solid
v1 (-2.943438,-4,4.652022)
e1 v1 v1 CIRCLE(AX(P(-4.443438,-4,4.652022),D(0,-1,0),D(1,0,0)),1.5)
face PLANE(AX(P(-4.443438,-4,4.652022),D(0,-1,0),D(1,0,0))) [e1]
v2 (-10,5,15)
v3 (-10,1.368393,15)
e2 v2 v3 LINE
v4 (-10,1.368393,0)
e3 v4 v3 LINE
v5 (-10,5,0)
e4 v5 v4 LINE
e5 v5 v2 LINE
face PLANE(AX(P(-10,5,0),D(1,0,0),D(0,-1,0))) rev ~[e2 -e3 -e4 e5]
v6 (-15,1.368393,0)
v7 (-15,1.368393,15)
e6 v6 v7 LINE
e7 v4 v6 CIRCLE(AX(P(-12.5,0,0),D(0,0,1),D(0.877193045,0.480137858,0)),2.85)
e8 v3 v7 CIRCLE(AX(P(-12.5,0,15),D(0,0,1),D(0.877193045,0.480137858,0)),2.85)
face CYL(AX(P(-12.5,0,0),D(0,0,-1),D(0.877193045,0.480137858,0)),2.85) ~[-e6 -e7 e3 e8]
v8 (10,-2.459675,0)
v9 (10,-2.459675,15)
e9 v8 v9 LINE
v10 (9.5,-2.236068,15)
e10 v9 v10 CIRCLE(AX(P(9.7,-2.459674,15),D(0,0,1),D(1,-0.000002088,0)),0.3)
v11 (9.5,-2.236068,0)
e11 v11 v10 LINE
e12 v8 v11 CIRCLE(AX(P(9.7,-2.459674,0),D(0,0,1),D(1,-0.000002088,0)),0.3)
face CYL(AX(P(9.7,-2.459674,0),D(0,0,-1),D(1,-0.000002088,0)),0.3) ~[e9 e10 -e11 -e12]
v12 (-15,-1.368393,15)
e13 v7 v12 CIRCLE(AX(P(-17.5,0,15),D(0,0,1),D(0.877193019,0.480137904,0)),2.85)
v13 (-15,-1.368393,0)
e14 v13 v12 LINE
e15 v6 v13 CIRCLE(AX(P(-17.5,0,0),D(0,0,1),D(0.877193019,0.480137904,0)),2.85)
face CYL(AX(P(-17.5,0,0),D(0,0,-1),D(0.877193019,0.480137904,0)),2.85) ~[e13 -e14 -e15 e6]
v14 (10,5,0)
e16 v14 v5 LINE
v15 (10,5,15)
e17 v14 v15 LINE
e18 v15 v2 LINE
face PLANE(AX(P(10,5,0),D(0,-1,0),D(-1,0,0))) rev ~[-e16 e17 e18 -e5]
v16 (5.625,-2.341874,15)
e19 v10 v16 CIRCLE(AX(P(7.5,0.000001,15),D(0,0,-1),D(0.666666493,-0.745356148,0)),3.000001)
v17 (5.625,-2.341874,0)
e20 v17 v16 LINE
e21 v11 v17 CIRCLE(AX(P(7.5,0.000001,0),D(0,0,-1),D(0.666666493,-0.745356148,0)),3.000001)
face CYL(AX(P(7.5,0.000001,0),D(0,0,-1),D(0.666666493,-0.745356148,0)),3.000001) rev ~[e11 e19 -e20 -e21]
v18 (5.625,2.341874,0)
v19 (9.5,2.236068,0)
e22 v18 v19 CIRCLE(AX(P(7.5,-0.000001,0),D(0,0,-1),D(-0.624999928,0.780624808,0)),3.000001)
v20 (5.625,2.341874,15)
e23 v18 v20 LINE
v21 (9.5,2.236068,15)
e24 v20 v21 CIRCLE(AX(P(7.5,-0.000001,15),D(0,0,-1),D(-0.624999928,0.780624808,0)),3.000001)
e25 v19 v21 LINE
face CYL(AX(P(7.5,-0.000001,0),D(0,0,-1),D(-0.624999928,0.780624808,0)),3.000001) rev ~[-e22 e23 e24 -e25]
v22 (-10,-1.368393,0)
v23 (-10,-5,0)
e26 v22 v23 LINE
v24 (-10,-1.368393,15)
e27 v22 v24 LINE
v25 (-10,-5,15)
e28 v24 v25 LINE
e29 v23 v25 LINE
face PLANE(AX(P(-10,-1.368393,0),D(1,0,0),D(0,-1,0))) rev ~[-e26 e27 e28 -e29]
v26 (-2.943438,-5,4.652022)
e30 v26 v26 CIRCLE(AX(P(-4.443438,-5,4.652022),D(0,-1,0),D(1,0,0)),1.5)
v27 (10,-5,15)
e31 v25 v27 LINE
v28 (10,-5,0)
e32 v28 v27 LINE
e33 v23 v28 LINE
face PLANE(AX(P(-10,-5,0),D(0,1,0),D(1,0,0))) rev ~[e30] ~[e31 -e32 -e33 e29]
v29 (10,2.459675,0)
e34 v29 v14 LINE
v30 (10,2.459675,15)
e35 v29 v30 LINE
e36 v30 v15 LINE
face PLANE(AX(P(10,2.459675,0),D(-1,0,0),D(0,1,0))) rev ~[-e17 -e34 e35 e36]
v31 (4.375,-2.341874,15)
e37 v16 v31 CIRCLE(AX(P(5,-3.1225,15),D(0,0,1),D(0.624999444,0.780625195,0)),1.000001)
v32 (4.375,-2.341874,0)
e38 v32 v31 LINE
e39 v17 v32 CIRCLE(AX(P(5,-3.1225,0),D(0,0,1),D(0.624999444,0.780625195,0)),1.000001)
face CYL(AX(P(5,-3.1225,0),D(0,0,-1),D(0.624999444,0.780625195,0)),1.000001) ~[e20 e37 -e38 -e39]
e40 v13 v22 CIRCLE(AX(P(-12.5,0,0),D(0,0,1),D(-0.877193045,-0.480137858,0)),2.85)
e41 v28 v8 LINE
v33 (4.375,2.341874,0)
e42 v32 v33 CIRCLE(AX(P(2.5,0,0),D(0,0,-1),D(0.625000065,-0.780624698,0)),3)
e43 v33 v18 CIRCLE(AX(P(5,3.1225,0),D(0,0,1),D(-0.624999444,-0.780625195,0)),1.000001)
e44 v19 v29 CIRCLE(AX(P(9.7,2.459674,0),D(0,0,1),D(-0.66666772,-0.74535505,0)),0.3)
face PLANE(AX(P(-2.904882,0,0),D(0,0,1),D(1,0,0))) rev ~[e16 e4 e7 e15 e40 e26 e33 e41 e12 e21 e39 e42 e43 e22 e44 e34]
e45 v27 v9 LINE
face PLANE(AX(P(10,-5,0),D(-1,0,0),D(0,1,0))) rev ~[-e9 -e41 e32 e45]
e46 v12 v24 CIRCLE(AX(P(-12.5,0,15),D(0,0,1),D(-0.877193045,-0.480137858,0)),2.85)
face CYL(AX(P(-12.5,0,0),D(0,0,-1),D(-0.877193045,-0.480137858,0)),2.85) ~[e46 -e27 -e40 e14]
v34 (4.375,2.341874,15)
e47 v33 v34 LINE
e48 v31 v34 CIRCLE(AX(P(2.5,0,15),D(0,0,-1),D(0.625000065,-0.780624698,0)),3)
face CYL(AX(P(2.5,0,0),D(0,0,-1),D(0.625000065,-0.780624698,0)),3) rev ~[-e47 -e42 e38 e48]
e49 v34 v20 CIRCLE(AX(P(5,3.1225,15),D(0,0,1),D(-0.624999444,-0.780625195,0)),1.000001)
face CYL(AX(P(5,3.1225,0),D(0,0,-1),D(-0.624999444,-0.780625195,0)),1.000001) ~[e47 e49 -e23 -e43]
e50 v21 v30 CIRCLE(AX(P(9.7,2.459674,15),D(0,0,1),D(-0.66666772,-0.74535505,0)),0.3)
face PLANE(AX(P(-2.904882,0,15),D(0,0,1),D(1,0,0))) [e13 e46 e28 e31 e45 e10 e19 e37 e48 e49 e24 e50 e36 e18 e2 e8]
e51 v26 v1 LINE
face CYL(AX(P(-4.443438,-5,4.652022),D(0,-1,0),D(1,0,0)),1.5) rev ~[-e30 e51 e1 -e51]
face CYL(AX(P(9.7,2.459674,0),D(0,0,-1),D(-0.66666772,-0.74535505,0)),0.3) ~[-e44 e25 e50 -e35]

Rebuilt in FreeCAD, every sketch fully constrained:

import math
import FreeCAD as App
import Part
import Sketcher

V = App.Vector

doc = App.newDocument("Part")
body = doc.addObject("PartDesign::Body", "Body")

# Sketch on XY plane
sketch1 = body.newObject("Sketcher::SketchObject", "Sketch")
sketch1.AttachmentSupport = (doc.getObject("XY_Plane"), [""])
sketch1.MapMode = "FlatFace"
sketch1.addGeometry(Part.LineSegment(V(-10, -5, 0), V(10, -5, 0)), False)
sketch1.addGeometry(Part.LineSegment(V(10, -5, 0), V(10, -2.46, 0)), False)
sketch1.addGeometry(Part.ArcOfCircle(Part.Circle(V(9.7, -2.46, 0), V(0, 0, 1), 0.3), math.radians(0), math.radians(132)), False)
sketch1.addGeometry(Part.ArcOfCircle(Part.Circle(V(7.5, 0, 0), V(0, 0, 1), 3), math.radians(-129), math.radians(-48)), False)
sketch1.addGeometry(Part.ArcOfCircle(Part.Circle(V(5, -3.12, 0), V(0, 0, 1), 1), math.radians(51), math.radians(129)), False)
sketch1.addGeometry(Part.ArcOfCircle(Part.Circle(V(2.5, 0, 0), V(0, 0, 1), 3), math.radians(51), math.radians(309)), False)
sketch1.addGeometry(Part.ArcOfCircle(Part.Circle(V(5, 3.12, 0), V(0, 0, 1), 1), math.radians(-129), math.radians(-51)), False)
sketch1.addGeometry(Part.ArcOfCircle(Part.Circle(V(7.5, 0, 0), V(0, 0, 1), 3), math.radians(48), math.radians(129)), False)
sketch1.addGeometry(Part.ArcOfCircle(Part.Circle(V(9.7, 2.46, 0), V(0, 0, 1), 0.3), math.radians(-132), math.radians(0)), False)
sketch1.addGeometry(Part.LineSegment(V(10, 2.46, 0), V(10, 5, 0)), False)
sketch1.addGeometry(Part.LineSegment(V(10, 5, 0), V(-10, 5, 0)), False)
sketch1.addGeometry(Part.LineSegment(V(-10, 5, 0), V(-10, 1.37, 0)), False)
sketch1.addGeometry(Part.ArcOfCircle(Part.Circle(V(-12.5, 0, 0), V(0, 0, 1), 2.85), math.radians(29), math.radians(151)), False)
sketch1.addGeometry(Part.ArcOfCircle(Part.Circle(V(-17.5, 0, 0), V(0, 0, 1), 2.85), math.radians(29), math.radians(331)), False)
sketch1.addGeometry(Part.ArcOfCircle(Part.Circle(V(-12.5, 0, 0), V(0, 0, 1), 2.85), math.radians(-151), math.radians(-29)), False)
sketch1.addGeometry(Part.LineSegment(V(-10, -1.37, 0), V(-10, -5, 0)), False)
sketch1.addConstraint(Sketcher.Constraint("Coincident", 0, 2, 1, 1))
sketch1.addConstraint(Sketcher.Constraint("Coincident", 1, 2, 2, 1))
sketch1.addConstraint(Sketcher.Constraint("Tangent", 2, 2, 3, 2))
sketch1.addConstraint(Sketcher.Constraint("Tangent", 3, 1, 4, 1))
sketch1.addConstraint(Sketcher.Constraint("Tangent", 4, 2, 5, 2))
sketch1.addConstraint(Sketcher.Constraint("Tangent", 5, 1, 6, 1))
sketch1.addConstraint(Sketcher.Constraint("Tangent", 6, 2, 7, 2))
sketch1.addConstraint(Sketcher.Constraint("Tangent", 7, 1, 8, 1))
sketch1.addConstraint(Sketcher.Constraint("Coincident", 8, 2, 9, 1))
sketch1.addConstraint(Sketcher.Constraint("Coincident", 9, 2, 10, 1))
sketch1.addConstraint(Sketcher.Constraint("Coincident", 10, 2, 11, 1))
sketch1.addConstraint(Sketcher.Constraint("Coincident", 11, 2, 12, 1))
sketch1.addConstraint(Sketcher.Constraint("Coincident", 12, 2, 13, 1))
sketch1.addConstraint(Sketcher.Constraint("Coincident", 13, 2, 14, 1))
sketch1.addConstraint(Sketcher.Constraint("Coincident", 14, 2, 15, 1))
sketch1.addConstraint(Sketcher.Constraint("Coincident", 15, 2, 0, 1))
sketch1.addConstraint(Sketcher.Constraint("Horizontal", 0))
sketch1.addConstraint(Sketcher.Constraint("Vertical", 1))
sketch1.addConstraint(Sketcher.Constraint("Vertical", 9))
sketch1.addConstraint(Sketcher.Constraint("Horizontal", 10))
sketch1.addConstraint(Sketcher.Constraint("Vertical", 11))
sketch1.addConstraint(Sketcher.Constraint("Vertical", 15))
sketch1.addConstraint(Sketcher.Constraint("Coincident", 7, 3, 3, 3))
sketch1.addConstraint(Sketcher.Constraint("Coincident", 14, 3, 12, 3))
sketch1.addConstraint(Sketcher.Constraint("Equal", 3, 5))
sketch1.addConstraint(Sketcher.Constraint("Equal", 4, 6))
sketch1.addConstraint(Sketcher.Constraint("Equal", 5, 7))
sketch1.addConstraint(Sketcher.Constraint("Equal", 2, 8))
sketch1.addConstraint(Sketcher.Constraint("Equal", 12, 13))
sketch1.addConstraint(Sketcher.Constraint("Equal", 13, 14))
sketch1.addConstraint(Sketcher.Constraint("Symmetric", 0, 2, 10, 2, -1, 1))
sketch1.addConstraint(Sketcher.Constraint("Symmetric", 4, 3, 6, 3, -1))
sketch1.addConstraint(Sketcher.Constraint("Symmetric", 1, 2, 8, 2, -1))
sketch1.addConstraint(Sketcher.Constraint("Symmetric", 12, 2, 13, 2, -1))
sketch1.addConstraint(Sketcher.Constraint("Horizontal", 2, 3, 1, 2))
sketch1.addConstraint(Sketcher.Constraint("Horizontal", 11, 2, 12, 2))
sketch1.addConstraint(Sketcher.Constraint("Horizontal", 13, 2, 14, 2))
sketch1.addConstraint(Sketcher.Constraint("Radius", 3, 3.000001))
sketch1.addConstraint(Sketcher.Constraint("Radius", 4, 1.000001))
sketch1.addConstraint(Sketcher.Constraint("Radius", 2, 0.3))
sketch1.addConstraint(Sketcher.Constraint("DistanceX", 0, 1, 0, 2, 20.0))
sketch1.addConstraint(Sketcher.Constraint("Radius", 12, 2.85))
sketch1.addConstraint(Sketcher.Constraint("DistanceX", -1, 1, 4, 3, 5.0))
sketch1.addConstraint(Sketcher.Constraint("DistanceY", 0, 2, -1, 1, 5.0))
sketch1.addConstraint(Sketcher.Constraint("DistanceX", 12, 2, -1, 1, 15.0))
sketch1.addConstraint(Sketcher.Constraint("DistanceX", 5, 3, 3, 3, 5.0))
pad1 = body.newObject("PartDesign::Pad", "Pad")
pad1.Profile = sketch1
pad1.Length = 15

# Sketch on XZ plane
sketch2 = body.newObject("Sketcher::SketchObject", "Sketch001")
sketch2.AttachmentSupport = (doc.getObject("XZ_Plane"), [""])
sketch2.MapMode = "FlatFace"
sketch2.AttachmentOffset = App.Placement(V(0, 0, 5), App.Rotation())
sketch2.addGeometry(Part.Circle(V(-4.4, 4.7, 0), V(0, 0, 1), 1.5), False)
sketch2.addConstraint(Sketcher.Constraint("Diameter", 0, 3.0))
sketch2.addConstraint(Sketcher.Constraint("DistanceX", 0, 3, -1, 1, 4.443438))
sketch2.addConstraint(Sketcher.Constraint("DistanceY", -1, 1, 0, 3, 4.652022))
pocket1 = body.newObject("PartDesign::Pocket", "Pocket")
pocket1.Profile = sketch2
pocket1.Length = 1

doc.recompute()
